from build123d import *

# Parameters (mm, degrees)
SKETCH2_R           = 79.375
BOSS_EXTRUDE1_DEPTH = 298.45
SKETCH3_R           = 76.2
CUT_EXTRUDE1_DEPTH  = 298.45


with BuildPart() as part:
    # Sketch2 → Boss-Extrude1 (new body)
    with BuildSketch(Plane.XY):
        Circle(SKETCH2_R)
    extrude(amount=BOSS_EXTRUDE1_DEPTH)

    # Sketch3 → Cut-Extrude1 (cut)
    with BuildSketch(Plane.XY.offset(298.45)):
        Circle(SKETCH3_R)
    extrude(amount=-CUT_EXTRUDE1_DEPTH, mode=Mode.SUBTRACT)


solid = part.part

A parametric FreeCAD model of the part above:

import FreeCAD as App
import Part
import Sketcher

V = App.Vector
Q = App.Units.Quantity

doc = App.newDocument("Part")
body = doc.addObject("PartDesign::Body", "Body")

sketch1 = body.newObject("Sketcher::SketchObject", "Sketch")
sketch1.AttachmentSupport = (doc.getObject("XY_Plane"), [""])
sketch1.MapMode = "FlatFace"
sketch1.addGeometry(Part.Circle(V(0, 0, 0), V(0, 0, 1), 79), False)
sketch1.addConstraint(Sketcher.Constraint("Coincident", 0, 3, -1, 1))
sketch1.addConstraint(Sketcher.Constraint("Diameter", 0, Q("6.25 in")))
pad1 = body.newObject("PartDesign::Pad", "Pad")
pad1.Profile = sketch1
pad1.Length = Q("11.75 in")

sketch2 = body.newObject("Sketcher::SketchObject", "Sketch001")
sketch2.AttachmentSupport = (doc.getObject("XY_Plane"), [""])
sketch2.MapMode = "FlatFace"
sketch2.AttachmentOffset = App.Placement(V(0, 0, 11.75 * 25.4), App.Rotation())
sketch2.addGeometry(Part.Circle(V(0, 0, 0), V(0, 0, 1), 76), False)
sketch2.addConstraint(Sketcher.Constraint("Coincident", 0, 3, -1, 1))
sketch2.addConstraint(Sketcher.Constraint("Diameter", 0, Q("6 in")))
pocket1 = body.newObject("PartDesign::Pocket", "Pocket")
pocket1.Profile = sketch2
pocket1.Length = Q("11.75 in")

doc.recompute()
